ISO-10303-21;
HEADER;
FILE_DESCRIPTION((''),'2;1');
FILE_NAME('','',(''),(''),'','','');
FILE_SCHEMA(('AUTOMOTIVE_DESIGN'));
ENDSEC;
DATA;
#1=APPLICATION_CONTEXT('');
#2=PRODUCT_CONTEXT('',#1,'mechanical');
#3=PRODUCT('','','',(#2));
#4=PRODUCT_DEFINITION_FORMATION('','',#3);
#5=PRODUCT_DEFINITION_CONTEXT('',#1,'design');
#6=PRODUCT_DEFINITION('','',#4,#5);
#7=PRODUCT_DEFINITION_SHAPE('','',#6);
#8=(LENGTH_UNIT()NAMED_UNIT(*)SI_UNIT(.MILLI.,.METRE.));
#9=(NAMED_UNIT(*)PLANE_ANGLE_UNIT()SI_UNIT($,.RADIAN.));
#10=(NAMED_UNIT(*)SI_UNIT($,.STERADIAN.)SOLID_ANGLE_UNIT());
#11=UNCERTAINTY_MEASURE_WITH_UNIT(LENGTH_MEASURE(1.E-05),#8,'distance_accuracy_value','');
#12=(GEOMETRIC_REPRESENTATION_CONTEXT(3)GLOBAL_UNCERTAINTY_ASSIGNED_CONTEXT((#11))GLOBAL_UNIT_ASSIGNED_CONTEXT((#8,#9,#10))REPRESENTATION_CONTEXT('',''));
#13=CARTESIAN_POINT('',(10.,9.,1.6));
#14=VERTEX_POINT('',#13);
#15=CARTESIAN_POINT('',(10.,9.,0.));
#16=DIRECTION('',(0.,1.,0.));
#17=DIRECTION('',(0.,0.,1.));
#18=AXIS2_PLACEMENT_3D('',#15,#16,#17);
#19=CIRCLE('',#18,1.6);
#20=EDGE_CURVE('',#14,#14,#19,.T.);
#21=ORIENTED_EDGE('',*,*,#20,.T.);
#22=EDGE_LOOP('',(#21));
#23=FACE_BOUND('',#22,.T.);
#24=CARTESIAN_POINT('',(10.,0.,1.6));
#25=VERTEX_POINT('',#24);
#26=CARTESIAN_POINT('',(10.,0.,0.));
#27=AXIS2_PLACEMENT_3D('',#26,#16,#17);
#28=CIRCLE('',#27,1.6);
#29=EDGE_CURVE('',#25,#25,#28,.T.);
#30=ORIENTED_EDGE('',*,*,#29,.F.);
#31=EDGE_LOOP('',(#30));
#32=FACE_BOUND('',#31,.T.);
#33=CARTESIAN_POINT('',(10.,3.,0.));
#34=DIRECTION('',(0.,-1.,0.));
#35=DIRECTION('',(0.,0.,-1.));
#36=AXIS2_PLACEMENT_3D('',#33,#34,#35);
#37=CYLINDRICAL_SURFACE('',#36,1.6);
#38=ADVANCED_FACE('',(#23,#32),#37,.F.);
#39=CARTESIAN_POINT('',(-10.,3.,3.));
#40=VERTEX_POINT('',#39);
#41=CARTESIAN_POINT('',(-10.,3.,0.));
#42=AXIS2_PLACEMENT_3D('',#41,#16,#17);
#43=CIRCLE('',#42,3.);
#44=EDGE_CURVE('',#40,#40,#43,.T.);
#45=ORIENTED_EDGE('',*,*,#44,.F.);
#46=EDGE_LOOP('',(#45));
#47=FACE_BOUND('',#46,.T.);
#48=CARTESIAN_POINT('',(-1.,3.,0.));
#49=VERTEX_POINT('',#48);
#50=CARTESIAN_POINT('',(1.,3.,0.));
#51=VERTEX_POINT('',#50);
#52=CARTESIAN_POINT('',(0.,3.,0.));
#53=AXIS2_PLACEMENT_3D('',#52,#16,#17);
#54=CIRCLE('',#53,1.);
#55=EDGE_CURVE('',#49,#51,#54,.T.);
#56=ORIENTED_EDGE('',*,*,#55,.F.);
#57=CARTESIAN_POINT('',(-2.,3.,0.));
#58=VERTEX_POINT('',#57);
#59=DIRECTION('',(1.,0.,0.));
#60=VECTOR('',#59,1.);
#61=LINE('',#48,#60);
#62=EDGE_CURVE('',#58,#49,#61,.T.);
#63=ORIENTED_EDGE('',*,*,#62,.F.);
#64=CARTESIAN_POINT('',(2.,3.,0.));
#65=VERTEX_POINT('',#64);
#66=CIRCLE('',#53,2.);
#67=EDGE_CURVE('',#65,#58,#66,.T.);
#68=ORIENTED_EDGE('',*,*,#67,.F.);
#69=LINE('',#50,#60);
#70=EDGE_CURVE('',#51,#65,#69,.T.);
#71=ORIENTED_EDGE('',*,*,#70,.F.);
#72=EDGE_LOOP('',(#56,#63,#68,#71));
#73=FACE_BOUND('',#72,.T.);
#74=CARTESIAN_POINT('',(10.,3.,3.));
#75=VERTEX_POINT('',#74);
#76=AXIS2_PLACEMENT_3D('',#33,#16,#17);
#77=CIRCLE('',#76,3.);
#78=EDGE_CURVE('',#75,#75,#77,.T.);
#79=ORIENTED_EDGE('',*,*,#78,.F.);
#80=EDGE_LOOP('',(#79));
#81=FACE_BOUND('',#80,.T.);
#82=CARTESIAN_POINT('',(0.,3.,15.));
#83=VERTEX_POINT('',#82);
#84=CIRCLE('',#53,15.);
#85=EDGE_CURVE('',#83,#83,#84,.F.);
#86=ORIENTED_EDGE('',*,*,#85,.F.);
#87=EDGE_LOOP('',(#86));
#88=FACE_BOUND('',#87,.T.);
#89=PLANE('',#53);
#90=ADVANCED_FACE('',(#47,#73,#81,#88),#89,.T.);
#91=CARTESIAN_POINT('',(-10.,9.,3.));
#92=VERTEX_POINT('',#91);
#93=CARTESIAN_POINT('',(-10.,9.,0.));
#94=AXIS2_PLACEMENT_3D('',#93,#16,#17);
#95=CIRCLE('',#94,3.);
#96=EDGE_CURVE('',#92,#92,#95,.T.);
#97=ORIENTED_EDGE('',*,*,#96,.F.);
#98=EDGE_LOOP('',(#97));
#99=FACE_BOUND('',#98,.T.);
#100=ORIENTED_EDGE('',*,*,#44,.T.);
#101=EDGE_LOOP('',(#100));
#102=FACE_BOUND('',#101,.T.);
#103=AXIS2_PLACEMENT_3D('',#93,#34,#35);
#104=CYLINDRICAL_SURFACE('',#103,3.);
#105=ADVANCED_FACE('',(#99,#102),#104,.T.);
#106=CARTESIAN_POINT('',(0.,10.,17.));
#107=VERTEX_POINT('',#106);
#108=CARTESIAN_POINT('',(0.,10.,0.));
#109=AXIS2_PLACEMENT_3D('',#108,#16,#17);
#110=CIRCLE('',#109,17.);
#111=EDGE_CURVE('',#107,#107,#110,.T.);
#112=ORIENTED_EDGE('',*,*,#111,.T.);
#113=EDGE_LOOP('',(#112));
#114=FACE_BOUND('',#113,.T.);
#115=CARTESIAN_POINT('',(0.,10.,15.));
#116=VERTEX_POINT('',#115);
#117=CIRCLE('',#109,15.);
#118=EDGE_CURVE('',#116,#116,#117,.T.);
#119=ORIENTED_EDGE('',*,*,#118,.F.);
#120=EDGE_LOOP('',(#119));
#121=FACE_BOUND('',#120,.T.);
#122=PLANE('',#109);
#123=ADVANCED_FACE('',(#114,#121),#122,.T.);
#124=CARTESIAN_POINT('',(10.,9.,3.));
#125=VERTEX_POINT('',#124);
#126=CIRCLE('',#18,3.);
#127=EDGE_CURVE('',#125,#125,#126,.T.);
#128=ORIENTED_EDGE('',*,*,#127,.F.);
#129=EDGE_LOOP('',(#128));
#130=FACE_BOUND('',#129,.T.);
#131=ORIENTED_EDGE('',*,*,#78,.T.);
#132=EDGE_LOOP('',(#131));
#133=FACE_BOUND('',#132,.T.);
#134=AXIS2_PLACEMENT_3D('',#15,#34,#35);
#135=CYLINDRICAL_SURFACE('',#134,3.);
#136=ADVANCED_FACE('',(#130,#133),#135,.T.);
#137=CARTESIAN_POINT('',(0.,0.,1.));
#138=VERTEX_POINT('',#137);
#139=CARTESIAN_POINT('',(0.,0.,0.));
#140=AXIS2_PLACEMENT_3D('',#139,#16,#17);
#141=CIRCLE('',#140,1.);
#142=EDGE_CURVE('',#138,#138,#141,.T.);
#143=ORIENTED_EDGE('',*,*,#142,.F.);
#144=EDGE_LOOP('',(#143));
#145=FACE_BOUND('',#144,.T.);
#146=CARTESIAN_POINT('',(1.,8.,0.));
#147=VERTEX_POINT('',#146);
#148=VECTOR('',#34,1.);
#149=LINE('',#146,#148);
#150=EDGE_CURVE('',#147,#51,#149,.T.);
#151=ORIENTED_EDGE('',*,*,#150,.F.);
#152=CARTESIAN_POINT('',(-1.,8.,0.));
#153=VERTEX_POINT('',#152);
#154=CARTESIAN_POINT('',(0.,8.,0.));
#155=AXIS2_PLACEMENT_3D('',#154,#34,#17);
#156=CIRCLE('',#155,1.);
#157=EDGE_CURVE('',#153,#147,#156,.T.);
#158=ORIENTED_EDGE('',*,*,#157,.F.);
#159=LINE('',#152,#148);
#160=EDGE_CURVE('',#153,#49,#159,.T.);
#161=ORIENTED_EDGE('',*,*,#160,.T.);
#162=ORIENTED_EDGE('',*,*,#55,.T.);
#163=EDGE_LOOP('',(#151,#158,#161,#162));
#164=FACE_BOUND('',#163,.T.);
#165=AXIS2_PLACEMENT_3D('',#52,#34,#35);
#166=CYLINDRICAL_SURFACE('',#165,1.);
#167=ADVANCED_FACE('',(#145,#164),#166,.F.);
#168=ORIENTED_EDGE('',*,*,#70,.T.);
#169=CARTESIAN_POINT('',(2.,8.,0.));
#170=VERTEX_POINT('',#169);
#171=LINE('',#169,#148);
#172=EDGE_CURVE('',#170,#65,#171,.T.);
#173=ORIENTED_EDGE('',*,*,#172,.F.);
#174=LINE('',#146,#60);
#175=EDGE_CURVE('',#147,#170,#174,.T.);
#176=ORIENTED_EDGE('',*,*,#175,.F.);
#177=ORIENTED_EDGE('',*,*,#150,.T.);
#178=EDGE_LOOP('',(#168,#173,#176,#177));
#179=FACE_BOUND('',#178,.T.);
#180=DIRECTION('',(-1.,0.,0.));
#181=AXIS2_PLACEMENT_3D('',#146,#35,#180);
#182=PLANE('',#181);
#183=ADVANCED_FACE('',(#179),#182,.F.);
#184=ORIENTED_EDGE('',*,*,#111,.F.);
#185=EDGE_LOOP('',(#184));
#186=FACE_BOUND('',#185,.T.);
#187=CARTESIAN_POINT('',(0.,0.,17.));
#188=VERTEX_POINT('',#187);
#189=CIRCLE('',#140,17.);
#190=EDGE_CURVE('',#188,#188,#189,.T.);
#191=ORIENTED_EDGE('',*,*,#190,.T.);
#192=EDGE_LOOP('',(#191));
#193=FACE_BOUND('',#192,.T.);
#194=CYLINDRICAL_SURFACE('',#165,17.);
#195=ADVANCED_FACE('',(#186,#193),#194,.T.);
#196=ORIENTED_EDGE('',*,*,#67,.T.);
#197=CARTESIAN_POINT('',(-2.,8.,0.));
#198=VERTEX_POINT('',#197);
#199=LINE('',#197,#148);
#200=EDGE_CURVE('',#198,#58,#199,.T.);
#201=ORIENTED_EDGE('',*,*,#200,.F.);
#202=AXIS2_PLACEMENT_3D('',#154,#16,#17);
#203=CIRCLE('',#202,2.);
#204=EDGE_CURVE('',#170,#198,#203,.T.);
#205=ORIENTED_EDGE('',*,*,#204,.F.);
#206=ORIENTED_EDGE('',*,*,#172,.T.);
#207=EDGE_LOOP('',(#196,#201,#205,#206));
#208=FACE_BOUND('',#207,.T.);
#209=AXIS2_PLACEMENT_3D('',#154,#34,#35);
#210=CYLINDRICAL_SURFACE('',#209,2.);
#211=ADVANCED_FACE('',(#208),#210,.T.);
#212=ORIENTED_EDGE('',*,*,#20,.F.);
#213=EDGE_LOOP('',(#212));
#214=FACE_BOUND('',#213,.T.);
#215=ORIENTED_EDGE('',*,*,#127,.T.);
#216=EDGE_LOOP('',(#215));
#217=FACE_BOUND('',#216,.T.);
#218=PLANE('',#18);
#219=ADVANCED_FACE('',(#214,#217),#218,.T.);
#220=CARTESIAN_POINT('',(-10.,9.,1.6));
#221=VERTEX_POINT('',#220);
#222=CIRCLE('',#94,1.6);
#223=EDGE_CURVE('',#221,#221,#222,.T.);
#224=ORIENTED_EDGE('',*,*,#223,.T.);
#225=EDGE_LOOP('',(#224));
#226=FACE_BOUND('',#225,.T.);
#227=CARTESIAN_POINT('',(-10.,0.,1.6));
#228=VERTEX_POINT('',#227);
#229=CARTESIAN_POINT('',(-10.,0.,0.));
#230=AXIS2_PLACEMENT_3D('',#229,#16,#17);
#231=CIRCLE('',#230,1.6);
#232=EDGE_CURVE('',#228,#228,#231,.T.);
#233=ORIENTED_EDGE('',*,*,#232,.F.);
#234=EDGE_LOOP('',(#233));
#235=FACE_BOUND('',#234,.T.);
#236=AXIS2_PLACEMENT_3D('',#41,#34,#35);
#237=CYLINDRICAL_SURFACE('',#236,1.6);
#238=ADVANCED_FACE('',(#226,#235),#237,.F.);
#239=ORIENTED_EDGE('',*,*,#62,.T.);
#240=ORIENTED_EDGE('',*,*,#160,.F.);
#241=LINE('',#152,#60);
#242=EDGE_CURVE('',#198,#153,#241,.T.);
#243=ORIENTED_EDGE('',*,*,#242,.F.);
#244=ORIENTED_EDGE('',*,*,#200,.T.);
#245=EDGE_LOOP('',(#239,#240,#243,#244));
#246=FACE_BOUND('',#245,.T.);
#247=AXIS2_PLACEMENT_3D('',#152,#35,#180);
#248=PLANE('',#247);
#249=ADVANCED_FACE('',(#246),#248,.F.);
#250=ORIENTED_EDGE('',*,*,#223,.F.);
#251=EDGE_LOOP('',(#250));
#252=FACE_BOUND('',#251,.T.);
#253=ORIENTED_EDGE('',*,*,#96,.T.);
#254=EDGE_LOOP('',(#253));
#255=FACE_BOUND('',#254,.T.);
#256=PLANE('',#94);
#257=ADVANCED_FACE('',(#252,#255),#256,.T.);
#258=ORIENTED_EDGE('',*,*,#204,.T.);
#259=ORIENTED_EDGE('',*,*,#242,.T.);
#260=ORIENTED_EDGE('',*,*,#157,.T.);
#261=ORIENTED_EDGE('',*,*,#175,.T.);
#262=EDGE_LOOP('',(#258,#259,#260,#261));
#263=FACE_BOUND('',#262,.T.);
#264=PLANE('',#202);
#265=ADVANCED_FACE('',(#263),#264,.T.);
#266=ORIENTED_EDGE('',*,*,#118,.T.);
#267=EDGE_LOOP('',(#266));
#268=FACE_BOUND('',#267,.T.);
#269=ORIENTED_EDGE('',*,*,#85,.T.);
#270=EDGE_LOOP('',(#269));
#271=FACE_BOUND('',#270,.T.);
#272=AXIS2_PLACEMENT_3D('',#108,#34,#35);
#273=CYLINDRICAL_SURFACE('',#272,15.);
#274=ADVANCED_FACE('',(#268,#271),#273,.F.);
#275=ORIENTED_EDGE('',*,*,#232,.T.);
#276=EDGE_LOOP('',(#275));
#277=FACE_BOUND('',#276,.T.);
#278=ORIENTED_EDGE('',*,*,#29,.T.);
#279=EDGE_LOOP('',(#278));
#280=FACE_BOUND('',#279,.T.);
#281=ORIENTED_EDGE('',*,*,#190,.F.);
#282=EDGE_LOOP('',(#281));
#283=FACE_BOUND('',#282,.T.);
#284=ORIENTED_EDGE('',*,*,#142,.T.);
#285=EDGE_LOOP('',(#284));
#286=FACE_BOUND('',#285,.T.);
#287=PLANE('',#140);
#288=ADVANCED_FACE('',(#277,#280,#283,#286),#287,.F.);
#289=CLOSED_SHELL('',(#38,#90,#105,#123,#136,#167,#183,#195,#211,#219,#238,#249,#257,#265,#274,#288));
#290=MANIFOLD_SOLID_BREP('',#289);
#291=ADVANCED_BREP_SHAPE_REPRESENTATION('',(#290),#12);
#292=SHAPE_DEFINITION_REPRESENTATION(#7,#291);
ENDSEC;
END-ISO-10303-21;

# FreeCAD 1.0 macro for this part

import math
import FreeCAD as App
import Part
import Sketcher

V = App.Vector

doc = App.newDocument("Part")
params = doc.addObject("Spreadsheet::Sheet", "Params")
for row, (alias, value) in enumerate([
    ("sketch1_diameter", "34 mm"),
    ("sketch1_diameter2", "2 mm"),
    ("sketch1_diameter3", "3.2 mm"),
    ("pad1_length", "3 mm"),
    ("sketch2_diameter", "34 mm"),
    ("sketch2_diameter2", "30 mm"),
    ("pad2_length", "7 mm"),
    ("sketch3_diameter", "6 mm"),
    ("sketch3_diameter2", "3.2 mm"),
    ("pad3_length", "6 mm"),
    ("sketch4_radius", "2 mm"),
    ("sketch4_radius2", "1 mm"),
    ("pad4_length", "5 mm"),
], start=1):
    params.set(f"A{row}", alias)
    params.set(f"B{row}", "=" + value)
    params.setAlias(f"B{row}", alias)

body = doc.addObject("PartDesign::Body", "Body")

# Sketch on XZ plane
sketch1 = body.newObject("Sketcher::SketchObject", "Sketch")
sketch1.AttachmentSupport = (doc.getObject("XZ_Plane"), [""])
sketch1.MapMode = "FlatFace"
sketch1.addGeometry(Part.Circle(V(0, 0, 0), V(0, 0, 1), 17), False)
sketch1.addGeometry(Part.Circle(V(-10, 0, 0), V(0, 0, 1), 1.6), False)
sketch1.addGeometry(Part.Circle(V(10, 0, 0), V(0, 0, 1), 1.6), False)
sketch1.addGeometry(Part.Circle(V(0, 0, 0), V(0, 0, 1), 1), False)
sketch1.addConstraint(Sketcher.Constraint("Coincident", 0, 3, -1, 1))
sketch1.addConstraint(Sketcher.Constraint("Coincident", 3, 3, -1, 1))
sketch1.addConstraint(Sketcher.Constraint("Equal", 1, 2))
sketch1.addConstraint(Sketcher.Constraint("Symmetric", 1, 3, 2, 3, -1, 1))
sketch1.addConstraint(Sketcher.Constraint("PointOnObject", 1, 3, -1))
sketch1.addConstraint(Sketcher.Constraint("Diameter", 0, 34.0))
sketch1.addConstraint(Sketcher.Constraint("Diameter", 3, 2.0))
sketch1.addConstraint(Sketcher.Constraint("Diameter", 1, 3.2))
sketch1.addConstraint(Sketcher.Constraint("DistanceX", 1, 3, -1, 1, 10.0))
sketch1.setExpression("Constraints[5]", "Params.sketch1_diameter")
sketch1.setExpression("Constraints[6]", "Params.sketch1_diameter2")
sketch1.setExpression("Constraints[7]", "Params.sketch1_diameter3")
pad1 = body.newObject("PartDesign::Pad", "Pad")
pad1.Profile = sketch1
pad1.setExpression("Length", "Params.pad1_length")
pad1.Reversed = True

# Sketch on XZ plane
sketch2 = body.newObject("Sketcher::SketchObject", "Sketch001")
sketch2.AttachmentSupport = (doc.getObject("XZ_Plane"), [""])
sketch2.MapMode = "FlatFace"
sketch2.AttachmentOffset = App.Placement(V(0, 0, -3), App.Rotation())
sketch2.addGeometry(Part.Circle(V(0, 0, 0), V(0, 0, 1), 17), False)
sketch2.addGeometry(Part.Circle(V(0, 0, 0), V(0, 0, 1), 15), False)
sketch2.addConstraint(Sketcher.Constraint("Coincident", 0, 3, -1, 1))
sketch2.addConstraint(Sketcher.Constraint("Coincident", 1, 3, -1, 1))
sketch2.addConstraint(Sketcher.Constraint("Diameter", 0, 34.0))
sketch2.addConstraint(Sketcher.Constraint("Diameter", 1, 30.0))
sketch2.setExpression("Constraints[2]", "Params.sketch2_diameter")
sketch2.setExpression("Constraints[3]", "Params.sketch2_diameter2")
pad2 = body.newObject("PartDesign::Pad", "Pad001")
pad2.Profile = sketch2
pad2.setExpression("Length", "Params.pad2_length")
pad2.Reversed = True

# Sketch on XZ plane
sketch3 = body.newObject("Sketcher::SketchObject", "Sketch002")
sketch3.AttachmentSupport = (doc.getObject("XZ_Plane"), [""])
sketch3.MapMode = "FlatFace"
sketch3.AttachmentOffset = App.Placement(V(0, 0, -3), App.Rotation())
sketch3.addGeometry(Part.Circle(V(10, 0, 0), V(0, 0, 1), 3), False)
sketch3.addGeometry(Part.Circle(V(10, 0, 0), V(0, 0, 1), 1.6), False)
sketch3.addGeometry(Part.Circle(V(-10, 0, 0), V(0, 0, 1), 3), False)
sketch3.addGeometry(Part.Circle(V(-10, 0, 0), V(0, 0, 1), 1.6), False)
sketch3.addConstraint(Sketcher.Constraint("Coincident", 1, 3, 0, 3))
sketch3.addConstraint(Sketcher.Constraint("Coincident", 3, 3, 2, 3))
sketch3.addConstraint(Sketcher.Constraint("Equal", 0, 2))
sketch3.addConstraint(Sketcher.Constraint("Equal", 1, 3))
sketch3.addConstraint(Sketcher.Constraint("Symmetric", 0, 3, 2, 3, -1, 1))
sketch3.addConstraint(Sketcher.Constraint("PointOnObject", 0, 3, -1))
sketch3.addConstraint(Sketcher.Constraint("Diameter", 0, 6.0))
sketch3.addConstraint(Sketcher.Constraint("Diameter", 1, 3.2))
sketch3.addConstraint(Sketcher.Constraint("DistanceX", -1, 1, 0, 3, 10.0))
sketch3.setExpression("Constraints[6]", "Params.sketch3_diameter")
sketch3.setExpression("Constraints[7]", "Params.sketch3_diameter2")
pad3 = body.newObject("PartDesign::Pad", "Pad002")
pad3.Profile = sketch3
pad3.setExpression("Length", "Params.pad3_length")
pad3.Reversed = True

# Sketch on XZ plane
sketch4 = body.newObject("Sketcher::SketchObject", "Sketch003")
sketch4.AttachmentSupport = (doc.getObject("XZ_Plane"), [""])
sketch4.MapMode = "FlatFace"
sketch4.AttachmentOffset = App.Placement(V(0, 0, -3), App.Rotation())
sketch4.addGeometry(Part.LineSegment(V(1, 0, 0), V(2, 0, 0)), False)
sketch4.addGeometry(Part.ArcOfCircle(Part.Circle(V(0, 0, 0), V(0, 0, 1), 2), math.radians(180), math.radians(360)), False)
sketch4.addGeometry(Part.LineSegment(V(-2, 0, 0), V(-1, 0, 0)), False)
sketch4.addGeometry(Part.ArcOfCircle(Part.Circle(V(0, 0, 0), V(0, 0, 1), 1), math.radians(180), math.radians(360)), False)
sketch4.addConstraint(Sketcher.Constraint("Coincident", 0, 2, 1, 2))
sketch4.addConstraint(Sketcher.Constraint("Coincident", 1, 1, 2, 1))
sketch4.addConstraint(Sketcher.Constraint("Coincident", 2, 2, 3, 1))
sketch4.addConstraint(Sketcher.Constraint("Coincident", 3, 2, 0, 1))
sketch4.addConstraint(Sketcher.Constraint("Horizontal", 0))
sketch4.addConstraint(Sketcher.Constraint("Horizontal", 2))
sketch4.addConstraint(Sketcher.Constraint("Coincident", 1, 3, -1, 1))
sketch4.addConstraint(Sketcher.Constraint("Coincident", 3, 3, -1, 1))
sketch4.addConstraint(Sketcher.Constraint("PointOnObject", 0, 2, -1))
sketch4.addConstraint(Sketcher.Constraint("PointOnObject", 1, 1, -1))
sketch4.addConstraint(Sketcher.Constraint("Radius", 1, 2.0))
sketch4.addConstraint(Sketcher.Constraint("Radius", 3, 1.0))
sketch4.setExpression("Constraints[10]", "Params.sketch4_radius")
sketch4.setExpression("Constraints[11]", "Params.sketch4_radius2")
pad4 = body.newObject("PartDesign::Pad", "Pad003")
pad4.Profile = sketch4
pad4.setExpression("Length", "Params.pad4_length")
pad4.Reversed = True

doc.recompute()
